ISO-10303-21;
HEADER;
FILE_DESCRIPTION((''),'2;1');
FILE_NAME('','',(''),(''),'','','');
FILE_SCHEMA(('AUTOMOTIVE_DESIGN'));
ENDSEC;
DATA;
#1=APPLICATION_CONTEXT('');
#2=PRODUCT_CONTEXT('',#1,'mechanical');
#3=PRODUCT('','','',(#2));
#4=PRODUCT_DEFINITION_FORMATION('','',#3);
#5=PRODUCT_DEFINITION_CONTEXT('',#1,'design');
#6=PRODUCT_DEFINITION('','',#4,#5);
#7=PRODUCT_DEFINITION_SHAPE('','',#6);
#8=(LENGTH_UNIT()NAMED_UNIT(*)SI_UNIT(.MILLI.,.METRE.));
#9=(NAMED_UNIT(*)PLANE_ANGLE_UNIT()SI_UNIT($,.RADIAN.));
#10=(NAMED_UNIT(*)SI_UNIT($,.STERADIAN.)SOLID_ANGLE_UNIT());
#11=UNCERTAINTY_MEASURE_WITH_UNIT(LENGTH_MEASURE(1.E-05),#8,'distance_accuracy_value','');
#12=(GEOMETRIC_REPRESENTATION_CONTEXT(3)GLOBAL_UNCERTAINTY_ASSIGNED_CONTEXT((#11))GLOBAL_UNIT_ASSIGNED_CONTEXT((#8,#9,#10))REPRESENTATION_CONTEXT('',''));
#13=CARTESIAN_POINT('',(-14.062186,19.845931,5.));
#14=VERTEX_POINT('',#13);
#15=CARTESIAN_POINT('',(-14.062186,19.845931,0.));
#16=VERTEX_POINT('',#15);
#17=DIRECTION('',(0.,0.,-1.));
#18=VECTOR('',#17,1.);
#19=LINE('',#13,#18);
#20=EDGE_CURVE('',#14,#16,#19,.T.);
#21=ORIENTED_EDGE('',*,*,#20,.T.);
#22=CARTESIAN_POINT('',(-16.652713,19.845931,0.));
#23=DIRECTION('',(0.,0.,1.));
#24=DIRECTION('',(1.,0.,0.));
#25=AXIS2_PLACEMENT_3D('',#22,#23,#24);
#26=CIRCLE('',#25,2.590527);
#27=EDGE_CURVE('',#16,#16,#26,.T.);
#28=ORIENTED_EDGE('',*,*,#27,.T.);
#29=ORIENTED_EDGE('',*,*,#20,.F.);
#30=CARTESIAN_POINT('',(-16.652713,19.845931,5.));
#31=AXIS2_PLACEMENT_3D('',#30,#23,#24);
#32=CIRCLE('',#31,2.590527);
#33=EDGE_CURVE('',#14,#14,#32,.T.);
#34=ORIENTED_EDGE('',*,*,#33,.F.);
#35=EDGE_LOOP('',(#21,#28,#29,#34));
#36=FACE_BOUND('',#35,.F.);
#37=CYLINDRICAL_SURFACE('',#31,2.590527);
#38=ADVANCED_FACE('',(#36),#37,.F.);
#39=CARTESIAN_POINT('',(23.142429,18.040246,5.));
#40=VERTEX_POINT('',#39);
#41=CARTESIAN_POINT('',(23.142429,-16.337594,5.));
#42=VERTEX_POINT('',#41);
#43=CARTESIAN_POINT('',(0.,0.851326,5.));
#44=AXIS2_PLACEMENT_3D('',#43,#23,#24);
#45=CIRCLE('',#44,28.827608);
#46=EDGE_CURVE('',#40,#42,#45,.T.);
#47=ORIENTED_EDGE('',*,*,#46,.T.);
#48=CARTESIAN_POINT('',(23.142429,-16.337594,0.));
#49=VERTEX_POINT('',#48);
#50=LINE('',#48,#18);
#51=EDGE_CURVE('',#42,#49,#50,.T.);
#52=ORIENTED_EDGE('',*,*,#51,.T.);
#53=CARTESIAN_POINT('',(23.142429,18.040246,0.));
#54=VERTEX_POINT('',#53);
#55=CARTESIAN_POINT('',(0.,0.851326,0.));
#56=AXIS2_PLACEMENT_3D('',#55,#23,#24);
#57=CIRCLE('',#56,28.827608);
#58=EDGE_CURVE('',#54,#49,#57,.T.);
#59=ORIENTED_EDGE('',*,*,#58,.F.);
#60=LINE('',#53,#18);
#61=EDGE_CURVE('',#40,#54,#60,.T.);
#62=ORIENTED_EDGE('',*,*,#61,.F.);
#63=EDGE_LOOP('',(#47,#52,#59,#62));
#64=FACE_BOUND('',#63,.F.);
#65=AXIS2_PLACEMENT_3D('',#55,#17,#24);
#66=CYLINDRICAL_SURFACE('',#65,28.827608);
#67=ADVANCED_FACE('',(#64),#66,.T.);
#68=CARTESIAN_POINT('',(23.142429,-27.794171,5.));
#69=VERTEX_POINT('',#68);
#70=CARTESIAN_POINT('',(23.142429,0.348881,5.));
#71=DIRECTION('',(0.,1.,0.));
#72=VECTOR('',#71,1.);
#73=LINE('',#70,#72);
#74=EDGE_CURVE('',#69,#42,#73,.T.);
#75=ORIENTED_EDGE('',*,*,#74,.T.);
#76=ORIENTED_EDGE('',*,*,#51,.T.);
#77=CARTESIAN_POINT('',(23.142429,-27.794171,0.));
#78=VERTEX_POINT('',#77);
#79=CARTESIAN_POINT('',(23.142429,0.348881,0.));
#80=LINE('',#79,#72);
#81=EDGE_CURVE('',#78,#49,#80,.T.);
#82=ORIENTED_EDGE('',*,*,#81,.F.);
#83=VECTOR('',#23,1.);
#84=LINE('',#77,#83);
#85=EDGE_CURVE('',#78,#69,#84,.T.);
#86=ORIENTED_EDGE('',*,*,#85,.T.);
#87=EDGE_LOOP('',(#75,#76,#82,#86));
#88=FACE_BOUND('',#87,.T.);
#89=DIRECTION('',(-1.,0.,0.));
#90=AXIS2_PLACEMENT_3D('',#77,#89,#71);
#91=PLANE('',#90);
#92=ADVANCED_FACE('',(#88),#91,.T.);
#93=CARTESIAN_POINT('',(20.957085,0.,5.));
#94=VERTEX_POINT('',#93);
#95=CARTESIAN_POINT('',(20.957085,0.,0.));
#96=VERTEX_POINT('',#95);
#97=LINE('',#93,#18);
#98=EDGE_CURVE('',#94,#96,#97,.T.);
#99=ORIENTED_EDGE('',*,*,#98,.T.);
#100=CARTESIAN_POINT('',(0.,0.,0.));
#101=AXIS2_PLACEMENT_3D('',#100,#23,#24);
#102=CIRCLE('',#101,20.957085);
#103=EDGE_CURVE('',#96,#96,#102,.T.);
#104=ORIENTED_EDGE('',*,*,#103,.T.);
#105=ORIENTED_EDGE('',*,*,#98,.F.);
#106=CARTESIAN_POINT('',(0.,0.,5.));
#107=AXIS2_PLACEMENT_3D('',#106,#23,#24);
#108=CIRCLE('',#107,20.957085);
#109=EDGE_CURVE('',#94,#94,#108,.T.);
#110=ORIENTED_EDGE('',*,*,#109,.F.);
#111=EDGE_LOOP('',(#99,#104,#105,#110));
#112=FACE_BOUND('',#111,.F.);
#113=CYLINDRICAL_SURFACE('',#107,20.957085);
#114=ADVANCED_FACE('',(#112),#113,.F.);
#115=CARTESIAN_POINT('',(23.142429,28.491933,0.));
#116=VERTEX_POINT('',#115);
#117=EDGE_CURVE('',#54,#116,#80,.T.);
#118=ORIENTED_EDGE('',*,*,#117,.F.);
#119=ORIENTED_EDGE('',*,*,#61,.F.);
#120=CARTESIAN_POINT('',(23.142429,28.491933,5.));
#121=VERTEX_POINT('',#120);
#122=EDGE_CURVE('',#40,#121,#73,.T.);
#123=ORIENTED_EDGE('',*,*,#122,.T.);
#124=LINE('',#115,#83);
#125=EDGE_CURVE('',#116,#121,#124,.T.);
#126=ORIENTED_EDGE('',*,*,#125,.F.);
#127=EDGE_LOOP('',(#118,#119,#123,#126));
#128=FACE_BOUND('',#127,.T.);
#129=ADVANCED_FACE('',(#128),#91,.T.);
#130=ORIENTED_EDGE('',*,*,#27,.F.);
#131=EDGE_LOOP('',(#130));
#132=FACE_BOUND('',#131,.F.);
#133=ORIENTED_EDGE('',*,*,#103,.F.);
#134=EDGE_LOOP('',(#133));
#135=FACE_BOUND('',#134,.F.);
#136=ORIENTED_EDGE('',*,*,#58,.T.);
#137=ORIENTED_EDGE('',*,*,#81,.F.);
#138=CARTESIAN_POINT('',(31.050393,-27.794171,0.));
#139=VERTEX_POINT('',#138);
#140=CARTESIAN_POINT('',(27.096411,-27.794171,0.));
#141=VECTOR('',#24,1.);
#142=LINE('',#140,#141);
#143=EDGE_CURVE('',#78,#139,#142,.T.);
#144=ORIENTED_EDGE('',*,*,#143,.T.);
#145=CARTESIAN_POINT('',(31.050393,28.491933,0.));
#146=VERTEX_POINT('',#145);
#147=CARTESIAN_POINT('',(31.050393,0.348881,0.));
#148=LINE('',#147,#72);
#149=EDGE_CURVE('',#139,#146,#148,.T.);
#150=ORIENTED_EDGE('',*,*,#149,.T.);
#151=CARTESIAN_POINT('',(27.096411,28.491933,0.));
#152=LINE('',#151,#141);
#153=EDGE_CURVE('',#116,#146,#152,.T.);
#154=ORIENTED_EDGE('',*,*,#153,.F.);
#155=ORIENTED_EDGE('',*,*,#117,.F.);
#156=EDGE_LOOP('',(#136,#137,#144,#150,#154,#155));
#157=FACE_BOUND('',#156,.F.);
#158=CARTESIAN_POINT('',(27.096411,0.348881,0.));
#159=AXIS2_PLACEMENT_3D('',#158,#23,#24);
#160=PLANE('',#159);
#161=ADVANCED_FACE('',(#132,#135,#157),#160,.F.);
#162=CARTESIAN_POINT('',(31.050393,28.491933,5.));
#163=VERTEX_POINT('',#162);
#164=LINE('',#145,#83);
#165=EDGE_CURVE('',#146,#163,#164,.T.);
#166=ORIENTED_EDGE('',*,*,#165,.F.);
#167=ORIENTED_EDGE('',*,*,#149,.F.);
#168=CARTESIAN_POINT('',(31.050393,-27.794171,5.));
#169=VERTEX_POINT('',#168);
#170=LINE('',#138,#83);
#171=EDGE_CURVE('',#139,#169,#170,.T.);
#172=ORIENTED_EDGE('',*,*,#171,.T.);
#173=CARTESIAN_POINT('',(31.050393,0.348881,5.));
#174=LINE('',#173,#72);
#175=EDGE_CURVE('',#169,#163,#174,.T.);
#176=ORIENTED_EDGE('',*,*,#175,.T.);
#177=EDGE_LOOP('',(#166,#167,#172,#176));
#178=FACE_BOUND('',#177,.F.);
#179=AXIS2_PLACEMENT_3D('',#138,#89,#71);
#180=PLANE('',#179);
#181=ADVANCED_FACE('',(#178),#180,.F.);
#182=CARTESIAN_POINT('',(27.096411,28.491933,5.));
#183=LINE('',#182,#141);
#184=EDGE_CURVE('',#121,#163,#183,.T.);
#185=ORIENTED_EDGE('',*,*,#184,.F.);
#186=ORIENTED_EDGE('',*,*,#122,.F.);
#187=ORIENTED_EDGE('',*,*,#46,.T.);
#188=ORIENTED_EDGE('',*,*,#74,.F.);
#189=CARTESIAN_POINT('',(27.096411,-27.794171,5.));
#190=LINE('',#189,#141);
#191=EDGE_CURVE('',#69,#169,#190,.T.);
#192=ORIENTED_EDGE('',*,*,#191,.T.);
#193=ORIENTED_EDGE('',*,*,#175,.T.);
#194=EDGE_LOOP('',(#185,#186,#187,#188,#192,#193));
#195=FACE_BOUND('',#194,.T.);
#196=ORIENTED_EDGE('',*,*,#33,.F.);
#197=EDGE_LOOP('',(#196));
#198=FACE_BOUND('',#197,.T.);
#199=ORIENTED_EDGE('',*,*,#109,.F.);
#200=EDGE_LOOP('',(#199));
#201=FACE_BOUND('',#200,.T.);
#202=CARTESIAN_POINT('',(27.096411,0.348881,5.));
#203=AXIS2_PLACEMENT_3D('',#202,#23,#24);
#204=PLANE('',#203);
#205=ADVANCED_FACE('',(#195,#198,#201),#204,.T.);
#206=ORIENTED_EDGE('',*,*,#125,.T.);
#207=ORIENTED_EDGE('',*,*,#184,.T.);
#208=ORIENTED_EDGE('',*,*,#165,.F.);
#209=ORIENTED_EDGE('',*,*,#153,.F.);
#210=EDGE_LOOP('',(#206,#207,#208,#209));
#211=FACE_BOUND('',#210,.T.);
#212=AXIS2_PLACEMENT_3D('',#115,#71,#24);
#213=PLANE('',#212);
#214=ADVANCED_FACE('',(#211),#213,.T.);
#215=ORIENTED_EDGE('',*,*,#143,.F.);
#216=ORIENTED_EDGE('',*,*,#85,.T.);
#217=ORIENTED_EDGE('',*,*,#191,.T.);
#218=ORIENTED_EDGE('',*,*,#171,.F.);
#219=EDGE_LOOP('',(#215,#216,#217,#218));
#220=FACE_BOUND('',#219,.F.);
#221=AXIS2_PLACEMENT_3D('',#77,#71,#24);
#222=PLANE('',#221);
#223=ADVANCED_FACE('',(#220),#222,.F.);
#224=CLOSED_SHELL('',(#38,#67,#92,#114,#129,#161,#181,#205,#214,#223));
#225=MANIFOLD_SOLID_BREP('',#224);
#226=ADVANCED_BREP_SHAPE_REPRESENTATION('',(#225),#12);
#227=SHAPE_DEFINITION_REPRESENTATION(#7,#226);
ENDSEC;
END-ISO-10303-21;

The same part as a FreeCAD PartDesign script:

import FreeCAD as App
import Part
import Sketcher
from FreeCAD import Vector
Q = App.Units.Quantity

doc = App.newDocument("Part")
params = doc.addObject("Spreadsheet::Sheet", "Params")
for row, (alias, value) in enumerate([
    ("pad1_length", "5 mm"),
    ("pocket1_length", "5 mm"),
    ("pad2_length", "5 mm"),
    ("pocket2_length", "5 mm"),
], start=1):
    params.set(f"A{row}", alias)
    params.set(f"B{row}", "=" + value)
    params.setAlias(f"B{row}", alias)

body = doc.addObject("PartDesign::Body", "Body")

# Sketch on XY plane
sketch1 = body.newObject("Sketcher::SketchObject", "Sketch")
sketch1.AttachmentSupport = (doc.getObject("XY_Plane"), [""])
sketch1.MapMode = "FlatFace"
sketch1.addGeometry(Part.Circle(Vector(0, 0.851326, 0), Vector(0, 0, 1), 28.827608), False)
sketch1.addConstraint([
    Sketcher.Constraint("PointOnObject", 0, 3, -2),
    Sketcher.Constraint("Diameter", 0, Q("57.655216 mm")),
    Sketcher.Constraint("DistanceY", -1, 1, 0, 3, Q("0.851326 mm")),
])
pad1 = body.newObject("PartDesign::Pad", "Pad")
pad1.Profile = sketch1
pad1.setExpression("Length", "Params.pad1_length")

# Sketch on XY plane
sketch2 = body.newObject("Sketcher::SketchObject", "Sketch001")
sketch2.AttachmentSupport = (doc.getObject("XY_Plane"), [""])
sketch2.MapMode = "FlatFace"
sketch2.AttachmentOffset = App.Placement(Vector(0, 0, 5), App.Rotation())
sketch2.addGeometry(Part.Circle(Vector(0, 0, 0), Vector(0, 0, 1), 20.957085), False)
sketch2.addConstraint([
    Sketcher.Constraint("Coincident", 0, 3, -1, 1),
    Sketcher.Constraint("Diameter", 0, Q("41.91417 mm")),
])
pocket1 = body.newObject("PartDesign::Pocket", "Pocket")
pocket1.Profile = sketch2
pocket1.setExpression("Length", "Params.pocket1_length")

# Sketch on XY plane
sketch3 = body.newObject("Sketcher::SketchObject", "Sketch002")
sketch3.AttachmentSupport = (doc.getObject("XY_Plane"), [""])
sketch3.MapMode = "FlatFace"
sketch3.addGeometry([
    Part.LineSegment(Vector(23.142429, 28.491933, 0), Vector(23.142429, -27.794171, 0)),
    Part.LineSegment(Vector(23.142429, -27.794171, 0), Vector(31.050393, -27.794171, 0)),
    Part.LineSegment(Vector(31.050393, -27.794171, 0), Vector(31.050393, 28.491933, 0)),
    Part.LineSegment(Vector(31.050393, 28.491933, 0), Vector(23.142429, 28.491933, 0)),
], False)
sketch3.addConstraint([
    Sketcher.Constraint("Coincident", 0, 2, 1, 1),
    Sketcher.Constraint("Coincident", 1, 2, 2, 1),
    Sketcher.Constraint("Coincident", 2, 2, 3, 1),
    Sketcher.Constraint("Coincident", 3, 2, 0, 1),
    Sketcher.Constraint("Vertical", 0),
    Sketcher.Constraint("Horizontal", 1),
    Sketcher.Constraint("Vertical", 2),
    Sketcher.Constraint("Horizontal", 3),
    Sketcher.Constraint("DistanceX", 1, 1, 1, 2, Q("7.907964 mm")),
    Sketcher.Constraint("DistanceY", 0, 2, 0, 1, Q("56.286104 mm")),
    Sketcher.Constraint("DistanceX", -1, 1, 0, 2, Q("23.142429 mm")),
    Sketcher.Constraint("DistanceY", 0, 2, -1, 1, Q("27.794171 mm")),
])
pad2 = body.newObject("PartDesign::Pad", "Pad001")
pad2.Profile = sketch3
pad2.setExpression("Length", "Params.pad2_length")

# Sketch on XY plane
sketch4 = body.newObject("Sketcher::SketchObject", "Sketch003")
sketch4.AttachmentSupport = (doc.getObject("XY_Plane"), [""])
sketch4.MapMode = "FlatFace"
sketch4.AttachmentOffset = App.Placement(Vector(0, 0, 5), App.Rotation())
sketch4.addGeometry(Part.Circle(Vector(-16.652713, 19.845931, 0), Vector(0, 0, 1), 2.590527), False)
sketch4.addConstraint([
    Sketcher.Constraint("Diameter", 0, Q("5.181054 mm")),
    Sketcher.Constraint("DistanceY", -1, 1, 0, 3, Q("19.845931 mm")),
    Sketcher.Constraint("DistanceX", 0, 3, -1, 1, Q("16.652713 mm")),
])
pocket2 = body.newObject("PartDesign::Pocket", "Pocket001")
pocket2.Profile = sketch4
pocket2.setExpression("Length", "Params.pocket2_length")

doc.recompute()
